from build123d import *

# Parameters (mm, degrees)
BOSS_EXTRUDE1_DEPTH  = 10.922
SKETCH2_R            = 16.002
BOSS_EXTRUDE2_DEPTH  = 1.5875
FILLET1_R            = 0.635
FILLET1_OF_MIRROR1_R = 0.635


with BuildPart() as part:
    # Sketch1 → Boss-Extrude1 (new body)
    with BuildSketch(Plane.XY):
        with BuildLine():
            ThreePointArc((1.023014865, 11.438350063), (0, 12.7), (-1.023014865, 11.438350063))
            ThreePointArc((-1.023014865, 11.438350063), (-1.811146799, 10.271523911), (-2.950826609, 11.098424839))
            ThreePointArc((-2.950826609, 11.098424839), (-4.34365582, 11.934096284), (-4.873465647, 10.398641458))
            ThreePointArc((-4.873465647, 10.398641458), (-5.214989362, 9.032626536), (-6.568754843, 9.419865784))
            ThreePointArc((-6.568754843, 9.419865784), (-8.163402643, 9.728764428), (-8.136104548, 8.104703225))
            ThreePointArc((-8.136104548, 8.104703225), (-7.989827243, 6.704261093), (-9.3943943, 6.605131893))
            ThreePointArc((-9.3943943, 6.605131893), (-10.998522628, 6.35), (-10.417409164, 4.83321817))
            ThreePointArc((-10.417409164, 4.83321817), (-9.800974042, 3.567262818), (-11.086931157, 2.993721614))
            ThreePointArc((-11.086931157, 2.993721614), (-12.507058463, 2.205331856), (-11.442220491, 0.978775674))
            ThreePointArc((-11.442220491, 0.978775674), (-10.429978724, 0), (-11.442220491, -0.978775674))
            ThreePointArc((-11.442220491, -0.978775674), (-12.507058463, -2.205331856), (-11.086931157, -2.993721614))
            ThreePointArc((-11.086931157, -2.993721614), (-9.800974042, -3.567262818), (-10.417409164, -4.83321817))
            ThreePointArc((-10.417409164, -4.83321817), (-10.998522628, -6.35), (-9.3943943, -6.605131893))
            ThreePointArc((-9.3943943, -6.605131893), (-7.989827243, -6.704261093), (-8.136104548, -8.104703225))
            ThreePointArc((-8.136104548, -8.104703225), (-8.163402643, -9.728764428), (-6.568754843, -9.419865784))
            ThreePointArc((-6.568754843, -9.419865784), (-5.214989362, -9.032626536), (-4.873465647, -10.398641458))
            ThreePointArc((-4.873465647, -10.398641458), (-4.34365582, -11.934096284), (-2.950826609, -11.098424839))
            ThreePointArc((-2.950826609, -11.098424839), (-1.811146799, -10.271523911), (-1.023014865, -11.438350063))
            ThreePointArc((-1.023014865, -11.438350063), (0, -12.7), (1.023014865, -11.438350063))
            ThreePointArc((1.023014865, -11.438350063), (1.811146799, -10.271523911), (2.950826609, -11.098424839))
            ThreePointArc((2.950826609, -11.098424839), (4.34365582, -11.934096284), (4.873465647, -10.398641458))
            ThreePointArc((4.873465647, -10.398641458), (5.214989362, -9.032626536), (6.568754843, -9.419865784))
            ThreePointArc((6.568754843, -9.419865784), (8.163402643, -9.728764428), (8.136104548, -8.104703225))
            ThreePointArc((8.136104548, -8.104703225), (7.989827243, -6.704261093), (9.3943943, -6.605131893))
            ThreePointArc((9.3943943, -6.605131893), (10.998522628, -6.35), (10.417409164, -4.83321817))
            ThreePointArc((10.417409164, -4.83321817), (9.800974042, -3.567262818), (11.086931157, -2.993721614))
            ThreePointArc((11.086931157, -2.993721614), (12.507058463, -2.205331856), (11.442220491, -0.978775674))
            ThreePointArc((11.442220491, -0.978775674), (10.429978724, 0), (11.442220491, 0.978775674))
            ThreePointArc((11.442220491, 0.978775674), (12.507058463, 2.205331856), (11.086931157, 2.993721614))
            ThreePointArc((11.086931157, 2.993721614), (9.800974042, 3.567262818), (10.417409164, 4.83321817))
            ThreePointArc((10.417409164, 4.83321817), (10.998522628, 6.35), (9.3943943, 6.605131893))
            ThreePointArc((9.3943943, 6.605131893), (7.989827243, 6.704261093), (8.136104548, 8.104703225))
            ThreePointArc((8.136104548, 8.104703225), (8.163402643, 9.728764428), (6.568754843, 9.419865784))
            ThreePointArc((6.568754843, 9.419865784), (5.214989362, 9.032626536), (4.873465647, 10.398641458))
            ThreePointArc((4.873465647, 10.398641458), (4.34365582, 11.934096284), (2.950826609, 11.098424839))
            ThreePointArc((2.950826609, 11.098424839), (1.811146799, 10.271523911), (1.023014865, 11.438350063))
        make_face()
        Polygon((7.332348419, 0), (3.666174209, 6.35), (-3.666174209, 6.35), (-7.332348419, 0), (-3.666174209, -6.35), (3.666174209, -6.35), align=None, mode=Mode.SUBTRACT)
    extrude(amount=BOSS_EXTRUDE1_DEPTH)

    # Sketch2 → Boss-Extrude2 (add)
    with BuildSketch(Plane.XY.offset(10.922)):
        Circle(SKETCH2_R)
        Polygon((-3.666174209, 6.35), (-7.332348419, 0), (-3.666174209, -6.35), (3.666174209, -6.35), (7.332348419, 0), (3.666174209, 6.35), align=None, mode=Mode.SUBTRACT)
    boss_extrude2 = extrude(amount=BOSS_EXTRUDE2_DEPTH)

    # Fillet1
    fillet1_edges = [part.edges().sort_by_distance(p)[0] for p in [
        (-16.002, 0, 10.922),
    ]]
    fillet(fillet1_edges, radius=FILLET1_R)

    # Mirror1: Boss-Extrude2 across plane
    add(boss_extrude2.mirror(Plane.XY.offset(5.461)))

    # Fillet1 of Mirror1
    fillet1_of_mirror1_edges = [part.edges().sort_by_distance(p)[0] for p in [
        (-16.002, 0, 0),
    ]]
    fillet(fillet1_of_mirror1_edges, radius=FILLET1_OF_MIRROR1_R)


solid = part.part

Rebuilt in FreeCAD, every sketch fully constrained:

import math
import FreeCAD as App
import Part
import Sketcher
Q = App.Units.Quantity


def edges_at(feature, points):
    """Names of the edges that pass closest to the given points."""
    edges = feature.Shape.Edges
    near = lambda p: min(range(len(edges)), key=lambda i: edges[i].distToShape(Part.Vertex(*p))[0])
    return sorted({f"Edge{near(p) + 1}" for p in points})


def add_polygon(sketch, points):
    """Adds a closed chain of lines whose ends are joined by coincident constraints."""
    first, n = sketch.GeometryCount, len(points)
    for a, b in zip(points, points[1:] + points[:1]):
        sketch.addGeometry(Part.LineSegment(App.Vector(*a, 0), App.Vector(*b, 0)), False)
    for i in range(n):
        sketch.addConstraint(Sketcher.Constraint("Coincident", first + i, 2, first + (i + 1) % n, 1))

doc = App.newDocument("Part")
body = doc.addObject("PartDesign::Body", "Body")

sketch1 = doc.addObject("Sketcher::SketchObject", "Sketch")
body.addObject(sketch1)
sketch1.AttachmentSupport = (doc.XY_Plane, [""])
sketch1.MapMode = "FlatFace"
sketch1.addGeometry(Part.ArcOfCircle(Part.Circle(App.Vector(0, 11.7, 0), App.Vector(0, 0, 1), 1), math.radians(-12), math.radians(192)), False)
sketch1.addGeometry(Part.ArcOfCircle(Part.Circle(App.Vector(-2, 11.2, 0), App.Vector(0, 0, 1), 1), math.radians(-172), math.radians(12)), False)
sketch1.addGeometry(Part.ArcOfCircle(Part.Circle(App.Vector(-4, 11, 0), App.Vector(0, 0, 1), 1), math.radians(8), math.radians(212)), False)
sketch1.addGeometry(Part.ArcOfCircle(Part.Circle(App.Vector(-5.7, 9.9, 0), App.Vector(0, 0, 1), 1), math.radians(-152), math.radians(32)), False)
sketch1.addGeometry(Part.ArcOfCircle(Part.Circle(App.Vector(-7.5, 8.9, 0), App.Vector(0, 0, 1), 1), math.radians(28), math.radians(232)), False)
sketch1.addGeometry(Part.ArcOfCircle(Part.Circle(App.Vector(-8.7, 7.3, 0), App.Vector(0, 0, 1), 1), math.radians(-132), math.radians(52)), False)
sketch1.addGeometry(Part.ArcOfCircle(Part.Circle(App.Vector(-10.1, 5.8, 0), App.Vector(0, 0, 1), 1), math.radians(48), math.radians(252)), False)
sketch1.addGeometry(Part.ArcOfCircle(Part.Circle(App.Vector(-10.7, 3.9, 0), App.Vector(0, 0, 1), 1), math.radians(-112), math.radians(72)), False)
sketch1.addGeometry(Part.ArcOfCircle(Part.Circle(App.Vector(-11.5, 2, 0), App.Vector(0, 0, 1), 1), math.radians(68), math.radians(272)), False)
sketch1.addGeometry(Part.ArcOfCircle(Part.Circle(App.Vector(-11.4, 0, 0), App.Vector(0, 0, 1), 1), math.radians(-92), math.radians(92)), False)
sketch1.addGeometry(Part.ArcOfCircle(Part.Circle(App.Vector(-11.5, -2, 0), App.Vector(0, 0, 1), 1), math.radians(88), math.radians(292)), False)
sketch1.addGeometry(Part.ArcOfCircle(Part.Circle(App.Vector(-10.7, -3.9, 0), App.Vector(0, 0, 1), 1), math.radians(-72), math.radians(112)), False)
sketch1.addGeometry(Part.ArcOfCircle(Part.Circle(App.Vector(-10.1, -5.8, 0), App.Vector(0, 0, 1), 1), math.radians(108), math.radians(312)), False)
sketch1.addGeometry(Part.ArcOfCircle(Part.Circle(App.Vector(-8.7, -7.3, 0), App.Vector(0, 0, 1), 1), math.radians(-52), math.radians(132)), False)
sketch1.addGeometry(Part.ArcOfCircle(Part.Circle(App.Vector(-7.5, -8.9, 0), App.Vector(0, 0, 1), 1), math.radians(128), math.radians(332)), False)
sketch1.addGeometry(Part.ArcOfCircle(Part.Circle(App.Vector(-5.7, -9.9, 0), App.Vector(0, 0, 1), 1), math.radians(-32), math.radians(152)), False)
sketch1.addGeometry(Part.ArcOfCircle(Part.Circle(App.Vector(-4, -11, 0), App.Vector(0, 0, 1), 1), math.radians(148), math.radians(352)), False)
sketch1.addGeometry(Part.ArcOfCircle(Part.Circle(App.Vector(-2, -11.2, 0), App.Vector(0, 0, 1), 1), math.radians(-12), math.radians(172)), False)
sketch1.addGeometry(Part.ArcOfCircle(Part.Circle(App.Vector(0, -11.7, 0), App.Vector(0, 0, 1), 1), math.radians(168), math.radians(372)), False)
sketch1.addGeometry(Part.ArcOfCircle(Part.Circle(App.Vector(2, -11.2, 0), App.Vector(0, 0, 1), 1), math.radians(8), math.radians(192)), False)
sketch1.addGeometry(Part.ArcOfCircle(Part.Circle(App.Vector(4, -11, 0), App.Vector(0, 0, 1), 1), math.radians(-172), math.radians(32)), False)
sketch1.addGeometry(Part.ArcOfCircle(Part.Circle(App.Vector(5.7, -9.9, 0), App.Vector(0, 0, 1), 1), math.radians(28), math.radians(212)), False)
sketch1.addGeometry(Part.ArcOfCircle(Part.Circle(App.Vector(7.5, -8.9, 0), App.Vector(0, 0, 1), 1), math.radians(-152), math.radians(52)), False)
sketch1.addGeometry(Part.ArcOfCircle(Part.Circle(App.Vector(8.7, -7.3, 0), App.Vector(0, 0, 1), 1), math.radians(48), math.radians(232)), False)
sketch1.addGeometry(Part.ArcOfCircle(Part.Circle(App.Vector(10.1, -5.8, 0), App.Vector(0, 0, 1), 1), math.radians(-132), math.radians(72)), False)
sketch1.addGeometry(Part.ArcOfCircle(Part.Circle(App.Vector(10.7, -3.9, 0), App.Vector(0, 0, 1), 1), math.radians(68), math.radians(252)), False)
sketch1.addGeometry(Part.ArcOfCircle(Part.Circle(App.Vector(11.5, -2, 0), App.Vector(0, 0, 1), 1), math.radians(-112), math.radians(92)), False)
sketch1.addGeometry(Part.ArcOfCircle(Part.Circle(App.Vector(11.4, 0, 0), App.Vector(0, 0, 1), 1), math.radians(88), math.radians(272)), False)
sketch1.addGeometry(Part.ArcOfCircle(Part.Circle(App.Vector(11.5, 2, 0), App.Vector(0, 0, 1), 1), math.radians(-92), math.radians(112)), False)
sketch1.addGeometry(Part.ArcOfCircle(Part.Circle(App.Vector(10.7, 3.9, 0), App.Vector(0, 0, 1), 1), math.radians(108), math.radians(292)), False)
sketch1.addGeometry(Part.ArcOfCircle(Part.Circle(App.Vector(10.1, 5.8, 0), App.Vector(0, 0, 1), 1), math.radians(-72), math.radians(132)), False)
sketch1.addGeometry(Part.ArcOfCircle(Part.Circle(App.Vector(8.7, 7.3, 0), App.Vector(0, 0, 1), 1), math.radians(128), math.radians(312)), False)
sketch1.addGeometry(Part.ArcOfCircle(Part.Circle(App.Vector(7.5, 8.9, 0), App.Vector(0, 0, 1), 1), math.radians(-52), math.radians(152)), False)
sketch1.addGeometry(Part.ArcOfCircle(Part.Circle(App.Vector(5.7, 9.9, 0), App.Vector(0, 0, 1), 1), math.radians(148), math.radians(332)), False)
sketch1.addGeometry(Part.ArcOfCircle(Part.Circle(App.Vector(4, 11, 0), App.Vector(0, 0, 1), 1), math.radians(-32), math.radians(172)), False)
sketch1.addGeometry(Part.ArcOfCircle(Part.Circle(App.Vector(2, 11.2, 0), App.Vector(0, 0, 1), 1), math.radians(168), math.radians(352)), False)
add_polygon(sketch1, [(3.7, 6.3), (7.3, 0), (3.7, -6.3), (-3.7, -6.3), (-7.3, 0), (-3.7, 6.3)])
sketch1.addConstraint(Sketcher.Constraint("Tangent", 0, 2, 1, 2))
sketch1.addConstraint(Sketcher.Constraint("Tangent", 1, 1, 2, 1))
sketch1.addConstraint(Sketcher.Constraint("Tangent", 2, 2, 3, 2))
sketch1.addConstraint(Sketcher.Constraint("Tangent", 3, 1, 4, 1))
sketch1.addConstraint(Sketcher.Constraint("Tangent", 4, 2, 5, 2))
sketch1.addConstraint(Sketcher.Constraint("Tangent", 5, 1, 6, 1))
sketch1.addConstraint(Sketcher.Constraint("Tangent", 6, 2, 7, 2))
sketch1.addConstraint(Sketcher.Constraint("Tangent", 7, 1, 8, 1))
sketch1.addConstraint(Sketcher.Constraint("Tangent", 8, 2, 9, 2))
sketch1.addConstraint(Sketcher.Constraint("Tangent", 9, 1, 10, 1))
sketch1.addConstraint(Sketcher.Constraint("Tangent", 10, 2, 11, 2))
sketch1.addConstraint(Sketcher.Constraint("Tangent", 11, 1, 12, 1))
sketch1.addConstraint(Sketcher.Constraint("Tangent", 12, 2, 13, 2))
sketch1.addConstraint(Sketcher.Constraint("Tangent", 13, 1, 14, 1))
sketch1.addConstraint(Sketcher.Constraint("Tangent", 14, 2, 15, 2))
sketch1.addConstraint(Sketcher.Constraint("Tangent", 15, 1, 16, 1))
sketch1.addConstraint(Sketcher.Constraint("Tangent", 16, 2, 17, 2))
sketch1.addConstraint(Sketcher.Constraint("Tangent", 17, 1, 18, 1))
sketch1.addConstraint(Sketcher.Constraint("Tangent", 18, 2, 19, 2))
sketch1.addConstraint(Sketcher.Constraint("Tangent", 19, 1, 20, 1))
sketch1.addConstraint(Sketcher.Constraint("Tangent", 20, 2, 21, 2))
sketch1.addConstraint(Sketcher.Constraint("Tangent", 21, 1, 22, 1))
sketch1.addConstraint(Sketcher.Constraint("Tangent", 22, 2, 23, 2))
sketch1.addConstraint(Sketcher.Constraint("Tangent", 23, 1, 24, 1))
sketch1.addConstraint(Sketcher.Constraint("Tangent", 24, 2, 25, 2))
sketch1.addConstraint(Sketcher.Constraint("Tangent", 25, 1, 26, 1))
sketch1.addConstraint(Sketcher.Constraint("Tangent", 26, 2, 27, 2))
sketch1.addConstraint(Sketcher.Constraint("Tangent", 27, 1, 28, 1))
sketch1.addConstraint(Sketcher.Constraint("Tangent", 28, 2, 29, 2))
sketch1.addConstraint(Sketcher.Constraint("Tangent", 29, 1, 30, 1))
sketch1.addConstraint(Sketcher.Constraint("Tangent", 30, 2, 31, 2))
sketch1.addConstraint(Sketcher.Constraint("Tangent", 31, 1, 32, 1))
sketch1.addConstraint(Sketcher.Constraint("Tangent", 32, 2, 33, 2))
sketch1.addConstraint(Sketcher.Constraint("Tangent", 33, 1, 34, 1))
sketch1.addConstraint(Sketcher.Constraint("Tangent", 34, 2, 35, 2))
sketch1.addConstraint(Sketcher.Constraint("Tangent", 35, 1, 0, 1))
sketch1.addConstraint(Sketcher.Constraint("Horizontal", 38))
sketch1.addConstraint(Sketcher.Constraint("Horizontal", 41))
sketch1.addConstraint(Sketcher.Constraint("Equal", 0, 2))
sketch1.addConstraint(Sketcher.Constraint("Equal", 1, 3))
sketch1.addConstraint(Sketcher.Constraint("Equal", 2, 4))
sketch1.addConstraint(Sketcher.Constraint("Equal", 3, 5))
sketch1.addConstraint(Sketcher.Constraint("Equal", 4, 6))
sketch1.addConstraint(Sketcher.Constraint("Equal", 5, 7))
sketch1.addConstraint(Sketcher.Constraint("Equal", 6, 8))
sketch1.addConstraint(Sketcher.Constraint("Equal", 7, 9))
sketch1.addConstraint(Sketcher.Constraint("Equal", 8, 10))
sketch1.addConstraint(Sketcher.Constraint("Equal", 9, 11))
sketch1.addConstraint(Sketcher.Constraint("Equal", 10, 12))
sketch1.addConstraint(Sketcher.Constraint("Equal", 11, 13))
sketch1.addConstraint(Sketcher.Constraint("Equal", 12, 14))
sketch1.addConstraint(Sketcher.Constraint("Equal", 13, 15))
sketch1.addConstraint(Sketcher.Constraint("Equal", 14, 16))
sketch1.addConstraint(Sketcher.Constraint("Equal", 15, 17))
sketch1.addConstraint(Sketcher.Constraint("Equal", 16, 18))
sketch1.addConstraint(Sketcher.Constraint("Equal", 17, 19))
sketch1.addConstraint(Sketcher.Constraint("Equal", 18, 20))
sketch1.addConstraint(Sketcher.Constraint("Equal", 19, 21))
sketch1.addConstraint(Sketcher.Constraint("Equal", 20, 22))
sketch1.addConstraint(Sketcher.Constraint("Equal", 21, 23))
sketch1.addConstraint(Sketcher.Constraint("Equal", 22, 24))
sketch1.addConstraint(Sketcher.Constraint("Equal", 23, 25))
sketch1.addConstraint(Sketcher.Constraint("Equal", 24, 26))
sketch1.addConstraint(Sketcher.Constraint("Equal", 25, 27))
sketch1.addConstraint(Sketcher.Constraint("Equal", 26, 28))
sketch1.addConstraint(Sketcher.Constraint("Equal", 27, 29))
sketch1.addConstraint(Sketcher.Constraint("Equal", 28, 30))
sketch1.addConstraint(Sketcher.Constraint("Equal", 29, 31))
sketch1.addConstraint(Sketcher.Constraint("Equal", 30, 32))
sketch1.addConstraint(Sketcher.Constraint("Equal", 31, 33))
sketch1.addConstraint(Sketcher.Constraint("Equal", 32, 34))
sketch1.addConstraint(Sketcher.Constraint("Equal", 33, 35))
sketch1.addConstraint(Sketcher.Constraint("Symmetric", 0, 3, 18, 3, -1, 1))
sketch1.addConstraint(Sketcher.Constraint("Symmetric", 2, 3, 20, 3, -1, 1))
sketch1.addConstraint(Sketcher.Constraint("Symmetric", 4, 3, 22, 3, -1, 1))
sketch1.addConstraint(Sketcher.Constraint("Symmetric", 6, 3, 24, 3, -1, 1))
sketch1.addConstraint(Sketcher.Constraint("Symmetric", 8, 3, 26, 3, -1, 1))
sketch1.addConstraint(Sketcher.Constraint("Symmetric", 10, 3, 28, 3, -1, 1))
sketch1.addConstraint(Sketcher.Constraint("Symmetric", 12, 3, 30, 3, -1, 1))
sketch1.addConstraint(Sketcher.Constraint("Symmetric", 14, 3, 32, 3, -1, 1))
sketch1.addConstraint(Sketcher.Constraint("Symmetric", 16, 3, 34, 3, -1, 1))
sketch1.addConstraint(Sketcher.Constraint("Symmetric", 36, 2, 39, 2, -1, 1))
sketch1.addConstraint(Sketcher.Constraint("Symmetric", 37, 2, 40, 2, -1, 1))
sketch1.addConstraint(Sketcher.Constraint("Symmetric", 17, 3, 19, 3, -2))
sketch1.addConstraint(Sketcher.Constraint("Symmetric", 15, 3, 21, 3, -2))
sketch1.addConstraint(Sketcher.Constraint("Symmetric", 13, 3, 23, 3, -2))
sketch1.addConstraint(Sketcher.Constraint("Symmetric", 11, 3, 25, 3, -2))
sketch1.addConstraint(Sketcher.Constraint("PointOnObject", 9, 3, -1))
sketch1.addConstraint(Sketcher.Constraint("PointOnObject", 36, 2, -1))
sketch1.addConstraint(Sketcher.Constraint("Parallel", 36, 39))
sketch1.addConstraint(Sketcher.Constraint("Vertical", 38, 2, 40, 2))
sketch1.addConstraint(Sketcher.Constraint("Angle", 36, Q("-60 deg")))
sketch1.addConstraint(Sketcher.Constraint("DistanceY", 37, 2, -1, 1, Q("0.25 in")))
sketch1.addConstraint(Sketcher.Constraint("Radius", 1, Q("0.979329 mm")))
sketch1.addConstraint(Sketcher.Constraint("Radius", 0, Q("1.045583 mm")))
sketch1.addConstraint(Sketcher.Constraint("DistanceX", 38, 2, 38, 1, Q("7.332348 mm")))
sketch1.addConstraint(Sketcher.Constraint("DistanceY", -1, 1, 4, 3, Q("8.927801 mm")))
sketch1.addConstraint(Sketcher.Constraint("DistanceY", -1, 1, 2, 3, Q("10.951569 mm")))
sketch1.addConstraint(Sketcher.Constraint("DistanceY", -1, 1, 3, 3, Q("9.88075 mm")))
sketch1.addConstraint(Sketcher.Constraint("DistanceY", -1, 1, 5, 3, Q("7.333762 mm")))
sketch1.addConstraint(Sketcher.Constraint("DistanceX", 6, 3, -1, 1, Q("10.093021 mm")))
sketch1.addConstraint(Sketcher.Constraint("DistanceY", -1, 1, 6, 3, Q("5.827208 mm")))
sketch1.addConstraint(Sketcher.Constraint("DistanceX", 8, 3, -1, 1, Q("11.47736 mm")))
sketch1.addConstraint(Sketcher.Constraint("DistanceY", -1, 1, 8, 3, Q("2.023768 mm")))
sketch1.addConstraint(Sketcher.Constraint("DistanceY", -1, 1, 0, 2, Q("11.43835 mm")))
pad1 = doc.addObject("PartDesign::Pad", "Pad")
body.addObject(pad1)
pad1.Profile = sketch1
pad1.Length = Q("0.43 in")

sketch2 = doc.addObject("Sketcher::SketchObject", "Sketch001")
body.addObject(sketch2)
sketch2.AttachmentSupport = (doc.XY_Plane, [""])
sketch2.MapMode = "FlatFace"
sketch2.AttachmentOffset = App.Placement(App.Vector(0, 0, 0.43 * 25.4), App.Rotation())
sketch2.addGeometry(Part.Circle(App.Vector(0, 0, 0), App.Vector(0, 0, 1), 16), False)
add_polygon(sketch2, [(-7, 0), (-4, 6), (4, 6), (7, 0), (4, -6), (-4, -6)])
sketch2.addConstraint(Sketcher.Constraint("Horizontal", 2))
sketch2.addConstraint(Sketcher.Constraint("Horizontal", 5))
sketch2.addConstraint(Sketcher.Constraint("Coincident", 0, 3, -1, 1))
sketch2.addConstraint(Sketcher.Constraint("Symmetric", 1, 2, 4, 2, -1, 1))
sketch2.addConstraint(Sketcher.Constraint("Symmetric", 3, 2, 6, 2, -1, 1))
sketch2.addConstraint(Sketcher.Constraint("PointOnObject", 3, 2, -1))
sketch2.addConstraint(Sketcher.Constraint("Parallel", 3, 6))
sketch2.addConstraint(Sketcher.Constraint("Vertical", 2, 2, 4, 2))
sketch2.addConstraint(Sketcher.Constraint("Diameter", 0, Q("1.26 in")))
sketch2.addConstraint(Sketcher.Constraint("Angle", 1, Q("60 deg")))
sketch2.addConstraint(Sketcher.Constraint("DistanceY", 4, 2, 2, 2, Q("0.5 in")))
sketch2.addConstraint(Sketcher.Constraint("DistanceX", 2, 1, 2, 2, Q("7.332348 mm")))
pad2 = doc.addObject("PartDesign::Pad", "Pad001")
body.addObject(pad2)
pad2.Profile = sketch2
pad2.Length = Q("0.0625 in")
doc.recompute()

fillet = doc.addObject("PartDesign::Fillet", "Fillet")
body.addObject(fillet)
fillet.Base = (pad2, edges_at(pad2, [(-16.002, 0, 10.922)]))
fillet.Radius = Q("0.025 in")
doc.recompute()

datumplane = doc.addObject("PartDesign::Plane", "DatumPlane")
body.addObject(datumplane)
datumplane.AttachmentSupport = (doc.XY_Plane, [""])
datumplane.MapMode = "FlatFace"
datumplane.AttachmentOffset = App.Placement(App.Vector(0, 0, 0.215 * 25.4), App.Rotation())
mirrored = doc.addObject("PartDesign::Mirrored", "Mirrored")
body.addObject(mirrored)
mirrored.Originals = [pad2]
mirrored.MirrorPlane = (datumplane, [""])
body.Tip = mirrored
doc.recompute()

fillet2 = doc.addObject("PartDesign::Fillet", "Fillet001")
body.addObject(fillet2)
fillet2.Base = (mirrored, edges_at(mirrored, [(-16.002, 0, 0)]))
fillet2.Radius = Q("0.025 in")

doc.recompute()
